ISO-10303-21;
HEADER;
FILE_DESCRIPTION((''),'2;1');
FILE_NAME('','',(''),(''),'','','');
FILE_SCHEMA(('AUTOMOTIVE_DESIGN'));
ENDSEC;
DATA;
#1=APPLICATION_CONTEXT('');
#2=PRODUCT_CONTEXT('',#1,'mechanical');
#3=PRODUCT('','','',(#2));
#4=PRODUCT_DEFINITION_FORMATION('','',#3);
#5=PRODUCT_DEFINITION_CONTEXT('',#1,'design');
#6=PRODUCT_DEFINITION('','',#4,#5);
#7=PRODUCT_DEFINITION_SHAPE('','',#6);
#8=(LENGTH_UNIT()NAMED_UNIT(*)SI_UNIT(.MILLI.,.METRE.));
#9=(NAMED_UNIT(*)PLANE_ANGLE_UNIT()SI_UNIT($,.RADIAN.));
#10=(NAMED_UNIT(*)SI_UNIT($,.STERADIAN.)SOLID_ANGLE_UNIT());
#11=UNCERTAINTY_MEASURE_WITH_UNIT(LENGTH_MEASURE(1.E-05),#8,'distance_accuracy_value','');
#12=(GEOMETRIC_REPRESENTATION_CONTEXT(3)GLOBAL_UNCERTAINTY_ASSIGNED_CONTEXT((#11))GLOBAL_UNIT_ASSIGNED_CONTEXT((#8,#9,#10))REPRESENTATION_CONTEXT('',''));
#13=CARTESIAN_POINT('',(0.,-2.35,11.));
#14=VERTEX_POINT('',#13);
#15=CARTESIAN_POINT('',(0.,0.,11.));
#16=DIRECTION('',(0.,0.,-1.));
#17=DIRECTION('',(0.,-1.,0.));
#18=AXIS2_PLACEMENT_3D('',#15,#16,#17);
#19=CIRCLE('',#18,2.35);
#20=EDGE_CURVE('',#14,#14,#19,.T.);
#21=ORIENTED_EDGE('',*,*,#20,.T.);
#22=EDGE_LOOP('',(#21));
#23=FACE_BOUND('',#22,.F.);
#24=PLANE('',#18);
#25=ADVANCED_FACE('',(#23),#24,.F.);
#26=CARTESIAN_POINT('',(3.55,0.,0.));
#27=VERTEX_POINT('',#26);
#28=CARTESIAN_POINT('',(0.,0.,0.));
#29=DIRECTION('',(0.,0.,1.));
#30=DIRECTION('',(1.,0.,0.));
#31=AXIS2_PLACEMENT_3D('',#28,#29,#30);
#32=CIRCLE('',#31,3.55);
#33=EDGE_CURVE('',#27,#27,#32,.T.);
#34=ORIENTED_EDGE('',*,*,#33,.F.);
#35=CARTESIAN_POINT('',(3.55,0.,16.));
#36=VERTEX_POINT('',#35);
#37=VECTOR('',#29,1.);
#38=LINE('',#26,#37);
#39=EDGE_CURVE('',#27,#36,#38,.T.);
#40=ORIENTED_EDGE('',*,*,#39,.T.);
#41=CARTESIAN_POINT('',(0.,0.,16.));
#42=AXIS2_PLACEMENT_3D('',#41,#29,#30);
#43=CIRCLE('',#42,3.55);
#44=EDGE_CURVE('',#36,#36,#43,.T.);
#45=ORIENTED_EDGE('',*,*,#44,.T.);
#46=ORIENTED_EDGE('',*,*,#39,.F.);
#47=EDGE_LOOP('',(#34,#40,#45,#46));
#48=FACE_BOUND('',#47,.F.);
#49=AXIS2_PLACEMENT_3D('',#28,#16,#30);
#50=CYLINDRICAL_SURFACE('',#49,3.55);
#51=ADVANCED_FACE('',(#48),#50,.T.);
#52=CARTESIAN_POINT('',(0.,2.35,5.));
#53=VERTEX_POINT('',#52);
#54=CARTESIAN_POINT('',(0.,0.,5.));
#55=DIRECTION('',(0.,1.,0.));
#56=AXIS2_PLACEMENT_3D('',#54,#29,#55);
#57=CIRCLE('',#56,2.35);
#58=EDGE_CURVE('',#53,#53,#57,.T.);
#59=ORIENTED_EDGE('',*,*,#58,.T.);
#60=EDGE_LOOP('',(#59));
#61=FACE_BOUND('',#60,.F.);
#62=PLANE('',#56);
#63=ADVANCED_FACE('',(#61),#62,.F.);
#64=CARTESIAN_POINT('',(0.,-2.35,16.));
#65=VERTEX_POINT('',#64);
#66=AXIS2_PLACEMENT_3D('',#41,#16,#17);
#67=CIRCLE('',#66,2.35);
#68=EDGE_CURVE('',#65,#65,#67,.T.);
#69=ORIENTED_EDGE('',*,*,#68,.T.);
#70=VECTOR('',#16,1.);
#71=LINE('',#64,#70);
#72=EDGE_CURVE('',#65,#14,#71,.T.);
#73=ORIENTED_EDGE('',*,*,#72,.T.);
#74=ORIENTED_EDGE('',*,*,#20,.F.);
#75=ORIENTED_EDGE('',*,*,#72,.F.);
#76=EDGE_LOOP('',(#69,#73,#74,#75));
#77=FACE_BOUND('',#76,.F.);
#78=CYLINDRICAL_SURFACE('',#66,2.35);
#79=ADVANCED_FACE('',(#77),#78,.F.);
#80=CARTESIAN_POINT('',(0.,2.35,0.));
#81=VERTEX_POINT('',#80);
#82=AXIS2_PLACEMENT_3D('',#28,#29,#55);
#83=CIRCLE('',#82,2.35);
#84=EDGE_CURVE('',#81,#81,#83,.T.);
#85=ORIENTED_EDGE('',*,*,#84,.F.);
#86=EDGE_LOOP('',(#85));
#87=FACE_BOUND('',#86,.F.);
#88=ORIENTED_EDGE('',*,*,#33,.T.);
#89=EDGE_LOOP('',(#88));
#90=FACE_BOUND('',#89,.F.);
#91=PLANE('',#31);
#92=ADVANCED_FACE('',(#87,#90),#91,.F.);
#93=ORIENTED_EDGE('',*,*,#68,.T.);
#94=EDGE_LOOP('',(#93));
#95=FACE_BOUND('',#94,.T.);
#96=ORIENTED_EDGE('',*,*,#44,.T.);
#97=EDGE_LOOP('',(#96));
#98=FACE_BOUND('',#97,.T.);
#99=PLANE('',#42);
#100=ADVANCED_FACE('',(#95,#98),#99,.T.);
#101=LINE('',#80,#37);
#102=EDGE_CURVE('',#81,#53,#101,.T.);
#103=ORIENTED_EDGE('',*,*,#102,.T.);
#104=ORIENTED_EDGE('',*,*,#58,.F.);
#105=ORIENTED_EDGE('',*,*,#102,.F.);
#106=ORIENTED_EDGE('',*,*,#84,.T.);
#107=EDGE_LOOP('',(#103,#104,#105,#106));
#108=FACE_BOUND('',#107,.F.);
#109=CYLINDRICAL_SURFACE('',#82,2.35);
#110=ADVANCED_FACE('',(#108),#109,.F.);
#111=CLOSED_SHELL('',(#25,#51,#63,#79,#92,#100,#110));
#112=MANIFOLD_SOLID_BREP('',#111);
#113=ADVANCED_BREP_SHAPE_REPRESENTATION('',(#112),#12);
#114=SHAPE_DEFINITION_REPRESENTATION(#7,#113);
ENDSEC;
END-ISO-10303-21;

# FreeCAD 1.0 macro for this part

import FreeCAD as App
import Part
import Sketcher
from FreeCAD import Vector
Q = App.Units.Quantity

doc = App.newDocument("Part")
body = doc.addObject("PartDesign::Body", "Body")

# Sketch on XY plane
sketch1 = body.newObject("Sketcher::SketchObject", "Sketch")
sketch1.AttachmentSupport = (doc.getObject("XY_Plane"), [""])
sketch1.MapMode = "FlatFace"
sketch1.addGeometry(Part.Circle(Vector(0, 0, 0), Vector(0, 0, 1), 3.5), False)
sketch1.addConstraint([
    Sketcher.Constraint("Coincident", 0, 3, -1, 1),
    Sketcher.Constraint("Diameter", 0, Q("7.1 mm")),
])
pad1 = body.newObject("PartDesign::Pad", "Pad")
pad1.Profile = sketch1
pad1.Length = 16

# Sketch on XY plane
sketch2 = body.newObject("Sketcher::SketchObject", "Sketch001")
sketch2.AttachmentSupport = (doc.getObject("XY_Plane"), [""])
sketch2.MapMode = "FlatFace"
sketch2.AttachmentOffset = App.Placement(Vector(0, 0, 16), App.Rotation())
sketch2.addGeometry(Part.Circle(Vector(0, 0, 0), Vector(0, 0, 1), 2.4), False)
sketch2.addConstraint([
    Sketcher.Constraint("Coincident", 0, 3, -1, 1),
    Sketcher.Constraint("Diameter", 0, Q("4.7 mm")),
])
doc.recompute()
hole = body.newObject("PartDesign::Hole", "Hole")
hole.Profile = sketch2
hole.ThreadType = "None"
hole.Diameter = 4.7
hole.DepthType = "Dimension"
hole.Depth = 5
hole.DrillPoint = "Flat"

# Sketch on XY plane
sketch3 = body.newObject("Sketcher::SketchObject", "Sketch002")
sketch3.AttachmentSupport = (doc.getObject("XY_Plane"), [""])
sketch3.MapMode = "FlatFace"
sketch3.addGeometry(Part.Circle(Vector(0, 0, 0), Vector(0, 0, 1), 2.4), False)
sketch3.addConstraint([
    Sketcher.Constraint("Coincident", 0, 3, -1, 1),
    Sketcher.Constraint("Diameter", 0, Q("4.7 mm")),
])
doc.recompute()
hole2 = body.newObject("PartDesign::Hole", "Hole001")
hole2.Profile = sketch3
hole2.ThreadType = "None"
hole2.Diameter = 4.7
hole2.DepthType = "Dimension"
hole2.Depth = 5
hole2.DrillPoint = "Flat"
hole2.Reversed = True

doc.recompute()
